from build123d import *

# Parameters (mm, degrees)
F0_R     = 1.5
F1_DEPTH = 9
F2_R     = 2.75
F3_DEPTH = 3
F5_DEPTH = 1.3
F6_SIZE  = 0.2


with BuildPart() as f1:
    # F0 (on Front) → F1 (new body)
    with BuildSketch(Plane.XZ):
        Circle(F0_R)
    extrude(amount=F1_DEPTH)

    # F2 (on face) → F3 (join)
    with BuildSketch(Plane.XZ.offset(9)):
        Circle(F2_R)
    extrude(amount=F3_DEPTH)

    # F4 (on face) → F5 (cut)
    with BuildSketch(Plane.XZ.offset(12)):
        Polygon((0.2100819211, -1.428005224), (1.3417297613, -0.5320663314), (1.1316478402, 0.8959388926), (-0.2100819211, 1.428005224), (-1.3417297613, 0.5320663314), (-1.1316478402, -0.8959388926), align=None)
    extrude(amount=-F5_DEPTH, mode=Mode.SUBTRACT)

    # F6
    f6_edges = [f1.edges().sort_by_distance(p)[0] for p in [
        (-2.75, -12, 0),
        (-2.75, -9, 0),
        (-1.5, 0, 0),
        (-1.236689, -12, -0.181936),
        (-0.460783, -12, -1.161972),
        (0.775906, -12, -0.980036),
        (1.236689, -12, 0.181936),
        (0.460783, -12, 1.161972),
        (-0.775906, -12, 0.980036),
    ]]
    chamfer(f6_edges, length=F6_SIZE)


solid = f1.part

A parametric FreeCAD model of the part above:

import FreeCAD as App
import Part
import Sketcher
Q = App.Units.Quantity


def edges_at(feature, points):
    """Names of the edges that pass closest to the given points."""
    edges = feature.Shape.Edges
    near = lambda p: min(range(len(edges)), key=lambda i: edges[i].distToShape(Part.Vertex(*p))[0])
    return sorted({f"Edge{near(p) + 1}" for p in points})


def add_polygon(sketch, points):
    """Adds a closed chain of lines whose ends are joined by coincident constraints."""
    first, n = sketch.GeometryCount, len(points)
    for a, b in zip(points, points[1:] + points[:1]):
        sketch.addGeometry(Part.LineSegment(App.Vector(*a, 0), App.Vector(*b, 0)), False)
    for i in range(n):
        sketch.addConstraint(Sketcher.Constraint("Coincident", first + i, 2, first + (i + 1) % n, 1))

doc = App.newDocument("Part")
body = doc.addObject("PartDesign::Body", "Body")

sketch1 = body.newObject("Sketcher::SketchObject", "Sketch")
sketch1.AttachmentSupport = (doc.getObject("XZ_Plane"), [""])
sketch1.MapMode = "FlatFace"
sketch1.addGeometry(Part.Circle(App.Vector(0, 0, 0), App.Vector(0, 0, 1), 1.5), False)
sketch1.addConstraint([
    Sketcher.Constraint("Coincident", 0, 3, -1, 1),
    Sketcher.Constraint("Diameter", 0, Q("3 mm")),
])
pad1 = body.newObject("PartDesign::Pad", "Pad")
pad1.Profile = sketch1
pad1.Length = 9

sketch2 = body.newObject("Sketcher::SketchObject", "Sketch001")
sketch2.AttachmentSupport = (doc.getObject("XZ_Plane"), [""])
sketch2.MapMode = "FlatFace"
sketch2.AttachmentOffset = App.Placement(App.Vector(0, 0, 9), App.Rotation())
sketch2.addGeometry(Part.Circle(App.Vector(0, 0, 0), App.Vector(0, 0, 1), 2.75), False)
sketch2.addConstraint([
    Sketcher.Constraint("Coincident", 0, 3, -1, 1),
    Sketcher.Constraint("Diameter", 0, Q("5.5 mm")),
])
pad2 = body.newObject("PartDesign::Pad", "Pad001")
pad2.Profile = sketch2
pad2.Length = 3

sketch3 = body.newObject("Sketcher::SketchObject", "Sketch002")
sketch3.AttachmentSupport = (doc.getObject("XZ_Plane"), [""])
sketch3.MapMode = "FlatFace"
sketch3.AttachmentOffset = App.Placement(App.Vector(0, 0, 12), App.Rotation())
add_polygon(sketch3, [(0.210082, -1.428005), (1.34173, -0.532066), (1.131648, 0.895939), (-0.210082, 1.428005), (-1.34173, 0.532066), (-1.131648, -0.895939)])
sketch3.addConstraint([
    Sketcher.Constraint("Symmetric", 0, 2, 3, 2, -1, 1),
    Sketcher.Constraint("Symmetric", 1, 2, 4, 2, -1, 1),
    Sketcher.Constraint("Symmetric", 2, 2, 5, 2, -1, 1),
    Sketcher.Constraint("Equal", 0, 1),
    Sketcher.Constraint("Equal", 1, 2),
    Sketcher.Constraint("DistanceX", -1, 1, 0, 2, Q("1.34173 mm")),
    Sketcher.Constraint("DistanceY", -1, 1, 1, 2, Q("0.895939 mm")),
    Sketcher.Constraint("DistanceX", 2, 2, -1, 1, Q("0.210082 mm")),
    Sketcher.Constraint("DistanceX", 1, 2, 0, 2, Q("0.210082 mm")),
])
pocket1 = body.newObject("PartDesign::Pocket", "Pocket")
pocket1.Profile = sketch3
pocket1.Length = 1.3
doc.recompute()

chamfer = body.newObject("PartDesign::Chamfer", "Chamfer")
chamfer.Base = (pocket1, edges_at(pocket1, [
    (-2.75, -12, 0),
    (-2.75, -9, 0),
    (-1.5, 0, 0),
    (-1.237, -12, -0.182),
    (-0.461, -12, -1.162),
    (0.776, -12, -0.98),
    (1.237, -12, 0.182),
    (0.461, -12, 1.162),
    (-0.776, -12, 0.98),
]))
chamfer.Size = 0.2

doc.recompute()
